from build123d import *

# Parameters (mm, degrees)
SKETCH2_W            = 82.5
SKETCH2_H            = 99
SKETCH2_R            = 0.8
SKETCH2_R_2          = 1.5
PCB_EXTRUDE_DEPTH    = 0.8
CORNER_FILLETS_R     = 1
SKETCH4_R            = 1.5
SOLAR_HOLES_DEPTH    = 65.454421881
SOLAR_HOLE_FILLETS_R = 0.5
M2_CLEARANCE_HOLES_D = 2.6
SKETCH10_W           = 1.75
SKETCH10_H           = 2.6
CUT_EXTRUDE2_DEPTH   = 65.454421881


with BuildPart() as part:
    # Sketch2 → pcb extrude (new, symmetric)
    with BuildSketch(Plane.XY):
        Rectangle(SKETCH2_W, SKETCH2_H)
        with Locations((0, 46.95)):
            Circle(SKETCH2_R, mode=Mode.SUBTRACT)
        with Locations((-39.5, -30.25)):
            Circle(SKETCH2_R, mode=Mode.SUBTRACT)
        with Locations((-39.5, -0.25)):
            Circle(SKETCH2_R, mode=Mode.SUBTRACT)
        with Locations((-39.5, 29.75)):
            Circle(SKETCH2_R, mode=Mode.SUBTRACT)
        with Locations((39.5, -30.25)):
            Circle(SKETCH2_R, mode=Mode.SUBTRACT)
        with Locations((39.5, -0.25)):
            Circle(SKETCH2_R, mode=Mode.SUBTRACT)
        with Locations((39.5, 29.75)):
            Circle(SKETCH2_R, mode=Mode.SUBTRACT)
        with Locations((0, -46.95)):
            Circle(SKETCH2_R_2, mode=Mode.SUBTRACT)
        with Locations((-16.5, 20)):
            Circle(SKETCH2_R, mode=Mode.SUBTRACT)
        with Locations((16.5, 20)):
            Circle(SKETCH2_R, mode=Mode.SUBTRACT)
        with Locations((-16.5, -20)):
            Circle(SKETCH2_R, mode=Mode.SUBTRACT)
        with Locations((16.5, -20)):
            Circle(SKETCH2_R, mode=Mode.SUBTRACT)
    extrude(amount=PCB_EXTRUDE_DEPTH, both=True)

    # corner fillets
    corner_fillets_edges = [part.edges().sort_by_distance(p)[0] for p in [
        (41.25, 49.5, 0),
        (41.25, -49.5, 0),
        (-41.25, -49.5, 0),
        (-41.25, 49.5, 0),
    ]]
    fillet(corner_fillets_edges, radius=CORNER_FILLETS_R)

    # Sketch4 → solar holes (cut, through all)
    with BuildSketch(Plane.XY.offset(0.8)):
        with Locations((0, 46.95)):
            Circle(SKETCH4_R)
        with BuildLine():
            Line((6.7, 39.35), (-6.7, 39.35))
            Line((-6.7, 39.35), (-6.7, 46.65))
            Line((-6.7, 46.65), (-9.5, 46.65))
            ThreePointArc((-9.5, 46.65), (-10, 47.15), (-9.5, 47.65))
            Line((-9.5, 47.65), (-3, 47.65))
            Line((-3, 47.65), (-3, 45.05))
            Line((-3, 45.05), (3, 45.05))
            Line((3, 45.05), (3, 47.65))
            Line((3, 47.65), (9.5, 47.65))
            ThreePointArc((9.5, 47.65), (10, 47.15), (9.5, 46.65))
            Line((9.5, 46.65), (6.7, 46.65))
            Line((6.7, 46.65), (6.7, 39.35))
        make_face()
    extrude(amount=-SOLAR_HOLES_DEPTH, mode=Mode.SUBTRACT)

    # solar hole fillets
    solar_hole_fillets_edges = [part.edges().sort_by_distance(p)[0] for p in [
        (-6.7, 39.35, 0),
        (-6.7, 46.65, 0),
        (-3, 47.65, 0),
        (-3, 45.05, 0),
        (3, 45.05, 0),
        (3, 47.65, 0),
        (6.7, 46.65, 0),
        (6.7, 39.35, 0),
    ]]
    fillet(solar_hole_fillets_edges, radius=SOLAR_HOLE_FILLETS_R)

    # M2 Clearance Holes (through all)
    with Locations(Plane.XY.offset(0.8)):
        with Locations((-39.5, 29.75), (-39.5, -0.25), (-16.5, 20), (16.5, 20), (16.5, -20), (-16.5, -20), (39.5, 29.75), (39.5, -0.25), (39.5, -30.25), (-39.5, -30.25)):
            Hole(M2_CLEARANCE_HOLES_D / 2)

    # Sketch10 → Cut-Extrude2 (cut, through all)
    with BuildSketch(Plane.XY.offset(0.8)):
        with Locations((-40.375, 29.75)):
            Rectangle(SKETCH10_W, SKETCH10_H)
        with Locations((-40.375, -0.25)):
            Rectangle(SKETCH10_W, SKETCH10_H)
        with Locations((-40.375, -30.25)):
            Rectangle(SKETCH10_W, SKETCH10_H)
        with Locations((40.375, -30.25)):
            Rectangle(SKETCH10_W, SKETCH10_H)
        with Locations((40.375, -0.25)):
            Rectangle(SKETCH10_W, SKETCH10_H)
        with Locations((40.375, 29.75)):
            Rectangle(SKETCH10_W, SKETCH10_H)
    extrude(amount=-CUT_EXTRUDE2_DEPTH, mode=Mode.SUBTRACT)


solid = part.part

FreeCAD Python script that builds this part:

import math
import FreeCAD as App
import Part
import Sketcher


def edges_at(feature, points):
    """Names of the edges that pass closest to the given points."""
    edges = feature.Shape.Edges
    near = lambda p: min(range(len(edges)), key=lambda i: edges[i].distToShape(Part.Vertex(*p))[0])
    return sorted({f"Edge{near(p) + 1}" for p in points})

doc = App.newDocument("Part")
body = doc.addObject("PartDesign::Body", "Body")

sketch1 = body.newObject("Sketcher::SketchObject", "Sketch")
sketch1.AttachmentSupport = (doc.getObject("XY_Plane"), [""])
sketch1.MapMode = "FlatFace"
sketch1.addGeometry(Part.LineSegment(App.Vector(-41.25, 49.5, 0), App.Vector(-41.25, -49.5, 0)), False)
sketch1.addGeometry(Part.LineSegment(App.Vector(-41.25, -49.5, 0), App.Vector(41.25, -49.5, 0)), False)
sketch1.addGeometry(Part.LineSegment(App.Vector(41.25, -49.5, 0), App.Vector(41.25, 49.5, 0)), False)
sketch1.addGeometry(Part.LineSegment(App.Vector(41.25, 49.5, 0), App.Vector(-41.25, 49.5, 0)), False)
sketch1.addGeometry(Part.Circle(App.Vector(-39.5, -30.25, 0), App.Vector(0, 0, 1), 0.8), False)
sketch1.addGeometry(Part.Circle(App.Vector(-16.5, -20, 0), App.Vector(0, 0, 1), 0.8), False)
sketch1.addGeometry(Part.Circle(App.Vector(0, -46.95, 0), App.Vector(0, 0, 1), 1.5), False)
sketch1.addGeometry(Part.Circle(App.Vector(39.5, -30.25, 0), App.Vector(0, 0, 1), 0.8), False)
sketch1.addGeometry(Part.Circle(App.Vector(16.5, -20, 0), App.Vector(0, 0, 1), 0.8), False)
sketch1.addGeometry(Part.Circle(App.Vector(-39.5, -0.25, 0), App.Vector(0, 0, 1), 0.8), False)
sketch1.addGeometry(Part.Circle(App.Vector(-16.5, 20, 0), App.Vector(0, 0, 1), 0.8), False)
sketch1.addGeometry(Part.Circle(App.Vector(-39.5, 29.75, 0), App.Vector(0, 0, 1), 0.8), False)
sketch1.addGeometry(Part.Circle(App.Vector(16.5, 20, 0), App.Vector(0, 0, 1), 0.8), False)
sketch1.addGeometry(Part.Circle(App.Vector(39.5, -0.25, 0), App.Vector(0, 0, 1), 0.8), False)
sketch1.addGeometry(Part.Circle(App.Vector(0, 46.95, 0), App.Vector(0, 0, 1), 0.8), False)
sketch1.addGeometry(Part.Circle(App.Vector(39.5, 29.75, 0), App.Vector(0, 0, 1), 0.8), False)
sketch1.addConstraint(Sketcher.Constraint("Coincident", 0, 2, 1, 1))
sketch1.addConstraint(Sketcher.Constraint("Coincident", 1, 2, 2, 1))
sketch1.addConstraint(Sketcher.Constraint("Coincident", 2, 2, 3, 1))
sketch1.addConstraint(Sketcher.Constraint("Coincident", 3, 2, 0, 1))
sketch1.addConstraint(Sketcher.Constraint("Vertical", 0))
sketch1.addConstraint(Sketcher.Constraint("Horizontal", 1))
sketch1.addConstraint(Sketcher.Constraint("Vertical", 2))
sketch1.addConstraint(Sketcher.Constraint("Horizontal", 3))
sketch1.addConstraint(Sketcher.Constraint("Equal", 4, 5))
sketch1.addConstraint(Sketcher.Constraint("Equal", 5, 7))
sketch1.addConstraint(Sketcher.Constraint("Equal", 7, 8))
sketch1.addConstraint(Sketcher.Constraint("Equal", 8, 9))
sketch1.addConstraint(Sketcher.Constraint("Equal", 9, 10))
sketch1.addConstraint(Sketcher.Constraint("Equal", 10, 11))
sketch1.addConstraint(Sketcher.Constraint("Equal", 11, 12))
sketch1.addConstraint(Sketcher.Constraint("Equal", 12, 13))
sketch1.addConstraint(Sketcher.Constraint("Equal", 13, 14))
sketch1.addConstraint(Sketcher.Constraint("Equal", 14, 15))
sketch1.addConstraint(Sketcher.Constraint("Symmetric", 8, 3, 10, 3, -1, 1))
sketch1.addConstraint(Sketcher.Constraint("Symmetric", 5, 3, 12, 3, -1, 1))
sketch1.addConstraint(Sketcher.Constraint("Symmetric", 6, 3, 14, 3, -1, 1))
sketch1.addConstraint(Sketcher.Constraint("Symmetric", 0, 2, 2, 2, -1, 1))
sketch1.addConstraint(Sketcher.Constraint("Symmetric", 4, 3, 7, 3, -2))
sketch1.addConstraint(Sketcher.Constraint("Symmetric", 5, 3, 8, 3, -2))
sketch1.addConstraint(Sketcher.Constraint("Symmetric", 9, 3, 13, 3, -2))
sketch1.addConstraint(Sketcher.Constraint("Symmetric", 11, 3, 15, 3, -2))
sketch1.addConstraint(Sketcher.Constraint("PointOnObject", 6, 3, -2))
sketch1.addConstraint(Sketcher.Constraint("Vertical", 4, 3, 9, 3))
sketch1.addConstraint(Sketcher.Constraint("Vertical", 9, 3, 11, 3))
sketch1.addConstraint(Sketcher.Constraint("Diameter", 6, 3.0))
sketch1.addConstraint(Sketcher.Constraint("Diameter", 4, 1.6))
sketch1.addConstraint(Sketcher.Constraint("DistanceY", 0, 2, 0, 1, 99.0))
sketch1.addConstraint(Sketcher.Constraint("DistanceX", 1, 1, 1, 2, 82.5))
sketch1.addConstraint(Sketcher.Constraint("DistanceY", 5, 3, -1, 1, 20.0))
sketch1.addConstraint(Sketcher.Constraint("DistanceX", 4, 3, 5, 3, 23.0))
sketch1.addConstraint(Sketcher.Constraint("DistanceX", 5, 3, 7, 3, 56.0))
sketch1.addConstraint(Sketcher.Constraint("DistanceY", 4, 3, 9, 3, 30.0))
sketch1.addConstraint(Sketcher.Constraint("DistanceY", 9, 3, 11, 3, 30.0))
sketch1.addConstraint(Sketcher.Constraint("DistanceY", 6, 3, 4, 3, 16.7))
sketch1.addConstraint(Sketcher.Constraint("DistanceY", 11, 3, 14, 3, 17.2))
pad1 = body.newObject("PartDesign::Pad", "Pad")
pad1.Profile = sketch1
pad1.Length = 1.6
pad1.Midplane = True
doc.recompute()

fillet = body.newObject("PartDesign::Fillet", "Fillet")
fillet.Base = (pad1, edges_at(pad1, [
    (41.25, 49.5, 0),
    (41.25, -49.5, 0),
    (-41.25, -49.5, 0),
    (-41.25, 49.5, 0),
]))
fillet.Radius = 1

sketch2 = body.newObject("Sketcher::SketchObject", "Sketch001")
sketch2.AttachmentSupport = (doc.getObject("XY_Plane"), [""])
sketch2.MapMode = "FlatFace"
sketch2.AttachmentOffset = App.Placement(App.Vector(0, 0, 0.8), App.Rotation())
sketch2.addGeometry(Part.Circle(App.Vector(0, 46.95, 0), App.Vector(0, 0, 1), 1.5), False)
sketch2.addGeometry(Part.LineSegment(App.Vector(-6.7, 39.35, 0), App.Vector(6.7, 39.35, 0)), False)
sketch2.addGeometry(Part.LineSegment(App.Vector(6.7, 39.35, 0), App.Vector(6.7, 46.65, 0)), False)
sketch2.addGeometry(Part.LineSegment(App.Vector(6.7, 46.65, 0), App.Vector(9.5, 46.65, 0)), False)
sketch2.addGeometry(Part.ArcOfCircle(Part.Circle(App.Vector(9.5, 47.15, 0), App.Vector(0, 0, 1), 0.5), math.radians(-90), math.radians(90)), False)
sketch2.addGeometry(Part.LineSegment(App.Vector(9.5, 47.65, 0), App.Vector(3, 47.65, 0)), False)
sketch2.addGeometry(Part.LineSegment(App.Vector(3, 47.65, 0), App.Vector(3, 45.05, 0)), False)
sketch2.addGeometry(Part.LineSegment(App.Vector(3, 45.05, 0), App.Vector(-3, 45.05, 0)), False)
sketch2.addGeometry(Part.LineSegment(App.Vector(-3, 45.05, 0), App.Vector(-3, 47.65, 0)), False)
sketch2.addGeometry(Part.LineSegment(App.Vector(-3, 47.65, 0), App.Vector(-9.5, 47.65, 0)), False)
sketch2.addGeometry(Part.ArcOfCircle(Part.Circle(App.Vector(-9.5, 47.15, 0), App.Vector(0, 0, 1), 0.5), math.radians(90), math.radians(270)), False)
sketch2.addGeometry(Part.LineSegment(App.Vector(-9.5, 46.65, 0), App.Vector(-6.7, 46.65, 0)), False)
sketch2.addGeometry(Part.LineSegment(App.Vector(-6.7, 46.65, 0), App.Vector(-6.7, 39.35, 0)), False)
sketch2.addConstraint(Sketcher.Constraint("Coincident", 1, 2, 2, 1))
sketch2.addConstraint(Sketcher.Constraint("Coincident", 2, 2, 3, 1))
sketch2.addConstraint(Sketcher.Constraint("Tangent", 3, 2, 4, 1))
sketch2.addConstraint(Sketcher.Constraint("Tangent", 4, 2, 5, 1))
sketch2.addConstraint(Sketcher.Constraint("Coincident", 5, 2, 6, 1))
sketch2.addConstraint(Sketcher.Constraint("Coincident", 6, 2, 7, 1))
sketch2.addConstraint(Sketcher.Constraint("Coincident", 7, 2, 8, 1))
sketch2.addConstraint(Sketcher.Constraint("Coincident", 8, 2, 9, 1))
sketch2.addConstraint(Sketcher.Constraint("Tangent", 9, 2, 10, 1))
sketch2.addConstraint(Sketcher.Constraint("Tangent", 10, 2, 11, 1))
sketch2.addConstraint(Sketcher.Constraint("Coincident", 11, 2, 12, 1))
sketch2.addConstraint(Sketcher.Constraint("Coincident", 12, 2, 1, 1))
sketch2.addConstraint(Sketcher.Constraint("Horizontal", 1))
sketch2.addConstraint(Sketcher.Constraint("Vertical", 2))
sketch2.addConstraint(Sketcher.Constraint("Horizontal", 3))
sketch2.addConstraint(Sketcher.Constraint("Horizontal", 5))
sketch2.addConstraint(Sketcher.Constraint("Vertical", 6))
sketch2.addConstraint(Sketcher.Constraint("Horizontal", 7))
sketch2.addConstraint(Sketcher.Constraint("Vertical", 8))
sketch2.addConstraint(Sketcher.Constraint("Horizontal", 9))
sketch2.addConstraint(Sketcher.Constraint("Horizontal", 11))
sketch2.addConstraint(Sketcher.Constraint("Vertical", 12))
sketch2.addConstraint(Sketcher.Constraint("Equal", 4, 10))
sketch2.addConstraint(Sketcher.Constraint("Symmetric", 4, 3, 10, 3, -2))
sketch2.addConstraint(Sketcher.Constraint("PointOnObject", 0, 3, -2))
sketch2.addConstraint(Sketcher.Constraint("Equal", 5, 9))
sketch2.addConstraint(Sketcher.Constraint("Equal", 3, 11))
sketch2.addConstraint(Sketcher.Constraint("Diameter", 0, 3.0))
sketch2.addConstraint(Sketcher.Constraint("Radius", 4, 0.5))
sketch2.addConstraint(Sketcher.Constraint("DistanceX", 7, 2, 7, 1, 6.0))
sketch2.addConstraint(Sketcher.Constraint("DistanceX", 1, 1, 1, 2, 13.4))
sketch2.addConstraint(Sketcher.Constraint("DistanceX", 3, 1, 3, 2, 2.8))
sketch2.addConstraint(Sketcher.Constraint("DistanceY", 2, 1, 2, 2, 7.3))
sketch2.addConstraint(Sketcher.Constraint("DistanceY", 6, 2, 6, 1, 2.6))
sketch2.addConstraint(Sketcher.Constraint("DistanceY", 0, 3, 4, 3, 0.2))
sketch2.addConstraint(Sketcher.Constraint("DistanceY", -1, 1, 0, 3, 46.95))
pocket1 = body.newObject("PartDesign::Pocket", "Pocket")
pocket1.Profile = sketch2
pocket1.Type = "ThroughAll"
doc.recompute()

fillet2 = body.newObject("PartDesign::Fillet", "Fillet001")
fillet2.Base = (pocket1, edges_at(pocket1, [
    (-6.7, 39.35, 0),
    (-6.7, 46.65, 0),
    (-3, 47.65, 0),
    (-3, 45.05, 0),
    (3, 45.05, 0),
    (3, 47.65, 0),
    (6.7, 46.65, 0),
    (6.7, 39.35, 0),
]))
fillet2.Radius = 0.5

sketch3 = body.newObject("Sketcher::SketchObject", "Sketch002")
sketch3.AttachmentSupport = (doc.getObject("XY_Plane"), [""])
sketch3.MapMode = "FlatFace"
sketch3.AttachmentOffset = App.Placement(App.Vector(0, 0, 0.8), App.Rotation())
sketch3.addGeometry(Part.Circle(App.Vector(-39.5, 29.75, 0), App.Vector(0, 0, 1), 1.3), False)
sketch3.addGeometry(Part.Circle(App.Vector(-39.5, -0.25, 0), App.Vector(0, 0, 1), 1.3), False)
sketch3.addGeometry(Part.Circle(App.Vector(-16.5, 20, 0), App.Vector(0, 0, 1), 1.3), False)
sketch3.addGeometry(Part.Circle(App.Vector(16.5, 20, 0), App.Vector(0, 0, 1), 1.3), False)
sketch3.addGeometry(Part.Circle(App.Vector(16.5, -20, 0), App.Vector(0, 0, 1), 1.3), False)
sketch3.addGeometry(Part.Circle(App.Vector(-16.5, -20, 0), App.Vector(0, 0, 1), 1.3), False)
sketch3.addGeometry(Part.Circle(App.Vector(39.5, 29.75, 0), App.Vector(0, 0, 1), 1.3), False)
sketch3.addGeometry(Part.Circle(App.Vector(39.5, -0.25, 0), App.Vector(0, 0, 1), 1.3), False)
sketch3.addGeometry(Part.Circle(App.Vector(39.5, -30.25, 0), App.Vector(0, 0, 1), 1.3), False)
sketch3.addGeometry(Part.Circle(App.Vector(-39.5, -30.25, 0), App.Vector(0, 0, 1), 1.3), False)
sketch3.addConstraint(Sketcher.Constraint("Equal", 0, 1))
sketch3.addConstraint(Sketcher.Constraint("Equal", 1, 2))
sketch3.addConstraint(Sketcher.Constraint("Equal", 2, 3))
sketch3.addConstraint(Sketcher.Constraint("Equal", 3, 4))
sketch3.addConstraint(Sketcher.Constraint("Equal", 4, 5))
sketch3.addConstraint(Sketcher.Constraint("Equal", 5, 6))
sketch3.addConstraint(Sketcher.Constraint("Equal", 6, 7))
sketch3.addConstraint(Sketcher.Constraint("Equal", 7, 8))
sketch3.addConstraint(Sketcher.Constraint("Equal", 8, 9))
sketch3.addConstraint(Sketcher.Constraint("Symmetric", 2, 3, 4, 3, -1, 1))
sketch3.addConstraint(Sketcher.Constraint("Symmetric", 3, 3, 5, 3, -1, 1))
sketch3.addConstraint(Sketcher.Constraint("Symmetric", 2, 3, 3, 3, -2))
sketch3.addConstraint(Sketcher.Constraint("Symmetric", 0, 3, 6, 3, -2))
sketch3.addConstraint(Sketcher.Constraint("Symmetric", 1, 3, 7, 3, -2))
sketch3.addConstraint(Sketcher.Constraint("Symmetric", 8, 3, 9, 3, -2))
sketch3.addConstraint(Sketcher.Constraint("Vertical", 0, 3, 1, 3))
sketch3.addConstraint(Sketcher.Constraint("Vertical", 7, 3, 8, 3))
sketch3.addConstraint(Sketcher.Constraint("Diameter", 0, 2.6))
sketch3.addConstraint(Sketcher.Constraint("DistanceY", -1, 1, 2, 3, 20.0))
sketch3.addConstraint(Sketcher.Constraint("DistanceY", 1, 3, 0, 3, 30.0))
sketch3.addConstraint(Sketcher.Constraint("DistanceX", 0, 3, 2, 3, 23.0))
sketch3.addConstraint(Sketcher.Constraint("DistanceX", 2, 3, 3, 3, 33.0))
sketch3.addConstraint(Sketcher.Constraint("DistanceY", 8, 3, 7, 3, 30.0))
sketch3.addConstraint(Sketcher.Constraint("DistanceY", -1, 1, 0, 3, 29.75))
doc.recompute()
hole = body.newObject("PartDesign::Hole", "Hole")
hole.Profile = sketch3
hole.ThreadType = "None"
hole.Diameter = 2.6
hole.DepthType = "ThroughAll"

sketch4 = body.newObject("Sketcher::SketchObject", "Sketch003")
sketch4.AttachmentSupport = (doc.getObject("XY_Plane"), [""])
sketch4.MapMode = "FlatFace"
sketch4.AttachmentOffset = App.Placement(App.Vector(0, 0, 0.8), App.Rotation())
sketch4.addGeometry(Part.LineSegment(App.Vector(-41.25, 31.05, 0), App.Vector(-41.25, 28.45, 0)), False)
sketch4.addGeometry(Part.LineSegment(App.Vector(-41.25, 28.45, 0), App.Vector(-39.5, 28.45, 0)), False)
sketch4.addGeometry(Part.LineSegment(App.Vector(-39.5, 28.45, 0), App.Vector(-39.5, 31.05, 0)), False)
sketch4.addGeometry(Part.LineSegment(App.Vector(-39.5, 31.05, 0), App.Vector(-41.25, 31.05, 0)), False)
sketch4.addGeometry(Part.LineSegment(App.Vector(-41.25, 1.05, 0), App.Vector(-41.25, -1.55, 0)), False)
sketch4.addGeometry(Part.LineSegment(App.Vector(-41.25, -1.55, 0), App.Vector(-39.5, -1.55, 0)), False)
sketch4.addGeometry(Part.LineSegment(App.Vector(-39.5, -1.55, 0), App.Vector(-39.5, 1.05, 0)), False)
sketch4.addGeometry(Part.LineSegment(App.Vector(-39.5, 1.05, 0), App.Vector(-41.25, 1.05, 0)), False)
sketch4.addGeometry(Part.LineSegment(App.Vector(-41.25, -28.95, 0), App.Vector(-41.25, -31.55, 0)), False)
sketch4.addGeometry(Part.LineSegment(App.Vector(-41.25, -31.55, 0), App.Vector(-39.5, -31.55, 0)), False)
sketch4.addGeometry(Part.LineSegment(App.Vector(-39.5, -31.55, 0), App.Vector(-39.5, -28.95, 0)), False)
sketch4.addGeometry(Part.LineSegment(App.Vector(-39.5, -28.95, 0), App.Vector(-41.25, -28.95, 0)), False)
sketch4.addGeometry(Part.LineSegment(App.Vector(39.5, -28.95, 0), App.Vector(39.5, -31.55, 0)), False)
sketch4.addGeometry(Part.LineSegment(App.Vector(39.5, -31.55, 0), App.Vector(41.25, -31.55, 0)), False)
sketch4.addGeometry(Part.LineSegment(App.Vector(41.25, -31.55, 0), App.Vector(41.25, -28.95, 0)), False)
sketch4.addGeometry(Part.LineSegment(App.Vector(41.25, -28.95, 0), App.Vector(39.5, -28.95, 0)), False)
sketch4.addGeometry(Part.LineSegment(App.Vector(39.5, 1.05, 0), App.Vector(39.5, -1.55, 0)), False)
sketch4.addGeometry(Part.LineSegment(App.Vector(39.5, -1.55, 0), App.Vector(41.25, -1.55, 0)), False)
sketch4.addGeometry(Part.LineSegment(App.Vector(41.25, -1.55, 0), App.Vector(41.25, 1.05, 0)), False)
sketch4.addGeometry(Part.LineSegment(App.Vector(41.25, 1.05, 0), App.Vector(39.5, 1.05, 0)), False)
sketch4.addGeometry(Part.LineSegment(App.Vector(39.5, 31.05, 0), App.Vector(39.5, 28.45, 0)), False)
sketch4.addGeometry(Part.LineSegment(App.Vector(39.5, 28.45, 0), App.Vector(41.25, 28.45, 0)), False)
sketch4.addGeometry(Part.LineSegment(App.Vector(41.25, 28.45, 0), App.Vector(41.25, 31.05, 0)), False)
sketch4.addGeometry(Part.LineSegment(App.Vector(41.25, 31.05, 0), App.Vector(39.5, 31.05, 0)), False)
sketch4.addConstraint(Sketcher.Constraint("Coincident", 0, 2, 1, 1))
sketch4.addConstraint(Sketcher.Constraint("Coincident", 1, 2, 2, 1))
sketch4.addConstraint(Sketcher.Constraint("Coincident", 2, 2, 3, 1))
sketch4.addConstraint(Sketcher.Constraint("Coincident", 3, 2, 0, 1))
sketch4.addConstraint(Sketcher.Constraint("Coincident", 4, 2, 5, 1))
sketch4.addConstraint(Sketcher.Constraint("Coincident", 5, 2, 6, 1))
sketch4.addConstraint(Sketcher.Constraint("Coincident", 6, 2, 7, 1))
sketch4.addConstraint(Sketcher.Constraint("Coincident", 7, 2, 4, 1))
sketch4.addConstraint(Sketcher.Constraint("Coincident", 8, 2, 9, 1))
sketch4.addConstraint(Sketcher.Constraint("Coincident", 9, 2, 10, 1))
sketch4.addConstraint(Sketcher.Constraint("Coincident", 10, 2, 11, 1))
sketch4.addConstraint(Sketcher.Constraint("Coincident", 11, 2, 8, 1))
sketch4.addConstraint(Sketcher.Constraint("Coincident", 12, 2, 13, 1))
sketch4.addConstraint(Sketcher.Constraint("Coincident", 13, 2, 14, 1))
sketch4.addConstraint(Sketcher.Constraint("Coincident", 14, 2, 15, 1))
sketch4.addConstraint(Sketcher.Constraint("Coincident", 15, 2, 12, 1))
sketch4.addConstraint(Sketcher.Constraint("Coincident", 16, 2, 17, 1))
sketch4.addConstraint(Sketcher.Constraint("Coincident", 17, 2, 18, 1))
sketch4.addConstraint(Sketcher.Constraint("Coincident", 18, 2, 19, 1))
sketch4.addConstraint(Sketcher.Constraint("Coincident", 19, 2, 16, 1))
sketch4.addConstraint(Sketcher.Constraint("Coincident", 20, 2, 21, 1))
sketch4.addConstraint(Sketcher.Constraint("Coincident", 21, 2, 22, 1))
sketch4.addConstraint(Sketcher.Constraint("Coincident", 22, 2, 23, 1))
sketch4.addConstraint(Sketcher.Constraint("Coincident", 23, 2, 20, 1))
sketch4.addConstraint(Sketcher.Constraint("Vertical", 0))
sketch4.addConstraint(Sketcher.Constraint("Horizontal", 1))
sketch4.addConstraint(Sketcher.Constraint("Vertical", 2))
sketch4.addConstraint(Sketcher.Constraint("Horizontal", 3))
sketch4.addConstraint(Sketcher.Constraint("Vertical", 4))
sketch4.addConstraint(Sketcher.Constraint("Horizontal", 5))
sketch4.addConstraint(Sketcher.Constraint("Vertical", 6))
sketch4.addConstraint(Sketcher.Constraint("Horizontal", 7))
sketch4.addConstraint(Sketcher.Constraint("Vertical", 8))
sketch4.addConstraint(Sketcher.Constraint("Horizontal", 9))
sketch4.addConstraint(Sketcher.Constraint("Vertical", 10))
sketch4.addConstraint(Sketcher.Constraint("Horizontal", 11))
sketch4.addConstraint(Sketcher.Constraint("Vertical", 12))
sketch4.addConstraint(Sketcher.Constraint("Horizontal", 13))
sketch4.addConstraint(Sketcher.Constraint("Vertical", 14))
sketch4.addConstraint(Sketcher.Constraint("Horizontal", 15))
sketch4.addConstraint(Sketcher.Constraint("Vertical", 16))
sketch4.addConstraint(Sketcher.Constraint("Horizontal", 17))
sketch4.addConstraint(Sketcher.Constraint("Vertical", 18))
sketch4.addConstraint(Sketcher.Constraint("Horizontal", 19))
sketch4.addConstraint(Sketcher.Constraint("Vertical", 20))
sketch4.addConstraint(Sketcher.Constraint("Horizontal", 21))
sketch4.addConstraint(Sketcher.Constraint("Vertical", 22))
sketch4.addConstraint(Sketcher.Constraint("Horizontal", 23))
sketch4.addConstraint(Sketcher.Constraint("Symmetric", 9, 2, 12, 2, -2))
sketch4.addConstraint(Sketcher.Constraint("Symmetric", 11, 2, 14, 2, -2))
sketch4.addConstraint(Sketcher.Constraint("Symmetric", 5, 2, 16, 2, -2))
sketch4.addConstraint(Sketcher.Constraint("Symmetric", 7, 2, 18, 2, -2))
sketch4.addConstraint(Sketcher.Constraint("Symmetric", 1, 2, 20, 2, -2))
sketch4.addConstraint(Sketcher.Constraint("Symmetric", 3, 2, 22, 2, -2))
sketch4.addConstraint(Sketcher.Constraint("Vertical", 3, 2, 4, 2))
sketch4.addConstraint(Sketcher.Constraint("Vertical", 2, 2, 5, 2))
sketch4.addConstraint(Sketcher.Constraint("Vertical", 7, 2, 8, 2))
sketch4.addConstraint(Sketcher.Constraint("Vertical", 6, 2, 9, 2))
sketch4.addConstraint(Sketcher.Constraint("Equal", 2, 4))
sketch4.addConstraint(Sketcher.Constraint("Equal", 6, 8))
sketch4.addConstraint(Sketcher.Constraint("DistanceY", 0, 2, 0, 1, 2.6))
sketch4.addConstraint(Sketcher.Constraint("DistanceY", 4, 2, 0, 2, 30.0))
sketch4.addConstraint(Sketcher.Constraint("DistanceY", 8, 2, 4, 2, 30.0))
sketch4.addConstraint(Sketcher.Constraint("DistanceX", 9, 2, 12, 2, 79.0))
sketch4.addConstraint(Sketcher.Constraint("DistanceX", 1, 1, 1, 2, 1.75))
sketch4.addConstraint(Sketcher.Constraint("DistanceY", -1, 1, 0, 2, 28.45))
pocket2 = body.newObject("PartDesign::Pocket", "Pocket001")
pocket2.Profile = sketch4
pocket2.Type = "ThroughAll"

doc.recompute()
